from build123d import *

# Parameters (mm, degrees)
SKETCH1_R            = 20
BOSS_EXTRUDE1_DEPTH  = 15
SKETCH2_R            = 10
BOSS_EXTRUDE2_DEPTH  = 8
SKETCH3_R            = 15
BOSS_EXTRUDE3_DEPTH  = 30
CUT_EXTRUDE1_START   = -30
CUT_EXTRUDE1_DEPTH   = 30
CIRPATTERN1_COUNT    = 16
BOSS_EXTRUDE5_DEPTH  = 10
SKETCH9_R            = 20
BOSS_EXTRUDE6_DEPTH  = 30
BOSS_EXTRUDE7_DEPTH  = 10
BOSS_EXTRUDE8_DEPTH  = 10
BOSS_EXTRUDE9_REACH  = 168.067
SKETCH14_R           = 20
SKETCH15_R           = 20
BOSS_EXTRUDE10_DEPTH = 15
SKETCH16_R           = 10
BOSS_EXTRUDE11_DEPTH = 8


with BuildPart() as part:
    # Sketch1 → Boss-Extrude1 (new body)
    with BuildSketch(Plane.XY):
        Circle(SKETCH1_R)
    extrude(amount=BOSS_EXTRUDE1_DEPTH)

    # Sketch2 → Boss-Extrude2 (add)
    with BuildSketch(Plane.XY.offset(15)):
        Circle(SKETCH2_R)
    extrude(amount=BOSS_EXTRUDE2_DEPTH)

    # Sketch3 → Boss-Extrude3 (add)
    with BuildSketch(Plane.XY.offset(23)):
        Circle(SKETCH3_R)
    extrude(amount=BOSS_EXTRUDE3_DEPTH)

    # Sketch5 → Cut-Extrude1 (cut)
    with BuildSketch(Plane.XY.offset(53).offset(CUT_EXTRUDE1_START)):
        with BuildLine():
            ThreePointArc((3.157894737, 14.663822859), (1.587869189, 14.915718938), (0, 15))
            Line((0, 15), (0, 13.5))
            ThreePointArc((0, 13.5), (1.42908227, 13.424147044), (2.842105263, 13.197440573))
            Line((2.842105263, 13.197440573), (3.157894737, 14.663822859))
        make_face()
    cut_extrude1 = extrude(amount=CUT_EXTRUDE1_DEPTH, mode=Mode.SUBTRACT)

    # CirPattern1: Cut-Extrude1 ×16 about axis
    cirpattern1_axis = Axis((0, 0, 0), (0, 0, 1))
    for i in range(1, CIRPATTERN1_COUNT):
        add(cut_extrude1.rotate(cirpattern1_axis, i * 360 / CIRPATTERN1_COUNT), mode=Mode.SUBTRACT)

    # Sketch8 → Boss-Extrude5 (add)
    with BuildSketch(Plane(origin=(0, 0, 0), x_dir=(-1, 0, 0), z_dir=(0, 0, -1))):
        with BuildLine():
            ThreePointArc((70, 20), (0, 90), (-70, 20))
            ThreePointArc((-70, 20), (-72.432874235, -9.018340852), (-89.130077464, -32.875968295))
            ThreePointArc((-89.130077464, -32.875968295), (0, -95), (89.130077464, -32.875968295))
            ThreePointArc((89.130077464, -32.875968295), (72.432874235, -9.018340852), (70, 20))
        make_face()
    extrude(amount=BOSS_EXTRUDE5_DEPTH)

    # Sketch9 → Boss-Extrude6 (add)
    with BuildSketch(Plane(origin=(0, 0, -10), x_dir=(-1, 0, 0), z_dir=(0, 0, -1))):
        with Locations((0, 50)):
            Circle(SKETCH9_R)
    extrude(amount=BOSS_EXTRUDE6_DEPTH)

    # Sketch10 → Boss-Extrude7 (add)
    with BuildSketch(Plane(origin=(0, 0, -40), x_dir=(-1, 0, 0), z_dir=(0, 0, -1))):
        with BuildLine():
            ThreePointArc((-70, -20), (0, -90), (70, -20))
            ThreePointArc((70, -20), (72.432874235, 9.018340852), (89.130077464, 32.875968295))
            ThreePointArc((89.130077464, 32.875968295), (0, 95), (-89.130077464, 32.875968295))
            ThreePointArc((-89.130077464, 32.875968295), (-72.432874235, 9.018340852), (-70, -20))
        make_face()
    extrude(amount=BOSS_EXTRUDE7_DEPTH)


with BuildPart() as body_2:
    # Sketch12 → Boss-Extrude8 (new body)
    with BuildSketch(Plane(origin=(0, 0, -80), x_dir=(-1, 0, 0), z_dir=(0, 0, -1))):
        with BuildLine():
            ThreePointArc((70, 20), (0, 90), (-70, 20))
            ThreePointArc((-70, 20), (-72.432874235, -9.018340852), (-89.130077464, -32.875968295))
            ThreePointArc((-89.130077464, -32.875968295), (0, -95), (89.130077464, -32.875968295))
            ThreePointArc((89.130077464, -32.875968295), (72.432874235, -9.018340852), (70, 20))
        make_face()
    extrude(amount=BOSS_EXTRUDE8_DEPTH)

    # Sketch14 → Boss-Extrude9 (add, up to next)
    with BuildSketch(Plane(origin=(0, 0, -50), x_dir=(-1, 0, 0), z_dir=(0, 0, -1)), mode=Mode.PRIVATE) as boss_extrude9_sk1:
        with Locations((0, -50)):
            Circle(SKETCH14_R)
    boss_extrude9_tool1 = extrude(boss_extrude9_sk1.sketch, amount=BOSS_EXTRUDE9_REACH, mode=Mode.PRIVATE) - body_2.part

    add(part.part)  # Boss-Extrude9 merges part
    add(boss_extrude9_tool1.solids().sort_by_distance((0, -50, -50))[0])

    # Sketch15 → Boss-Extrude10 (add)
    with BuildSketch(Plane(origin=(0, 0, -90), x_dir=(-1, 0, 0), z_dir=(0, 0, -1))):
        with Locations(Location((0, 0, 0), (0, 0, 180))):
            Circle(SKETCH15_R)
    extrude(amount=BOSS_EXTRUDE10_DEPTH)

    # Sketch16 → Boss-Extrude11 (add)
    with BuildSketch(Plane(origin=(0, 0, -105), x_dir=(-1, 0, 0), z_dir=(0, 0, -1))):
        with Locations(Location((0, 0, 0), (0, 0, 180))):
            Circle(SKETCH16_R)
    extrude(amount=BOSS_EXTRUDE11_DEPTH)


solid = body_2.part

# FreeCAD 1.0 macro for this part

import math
import FreeCAD as App
import Part
import Sketcher
from FreeCAD import Vector
Q = App.Units.Quantity

doc = App.newDocument("Part")
body = doc.addObject("PartDesign::Body", "Body")

# Sketch on XY plane
sketch1 = body.newObject("Sketcher::SketchObject", "Sketch")
sketch1.AttachmentSupport = (doc.getObject("XY_Plane"), [""])
sketch1.MapMode = "FlatFace"
sketch1.addGeometry(Part.Circle(Vector(0, 0, 0), Vector(0, 0, 1), 20), False)
sketch1.addConstraint([
    Sketcher.Constraint("Coincident", 0, 3, -1, 1),
    Sketcher.Constraint("Diameter", 0, Q("40 mm")),
])
pad1 = body.newObject("PartDesign::Pad", "Pad")
pad1.Profile = sketch1
pad1.Length = 15

# Sketch on XY plane
sketch2 = body.newObject("Sketcher::SketchObject", "Sketch001")
sketch2.AttachmentSupport = (doc.getObject("XY_Plane"), [""])
sketch2.MapMode = "FlatFace"
sketch2.AttachmentOffset = App.Placement(Vector(0, 0, 15), App.Rotation())
sketch2.addGeometry(Part.Circle(Vector(0, 0, 0), Vector(0, 0, 1), 10), False)
sketch2.addConstraint([
    Sketcher.Constraint("Coincident", 0, 3, -1, 1),
    Sketcher.Constraint("Diameter", 0, Q("20 mm")),
])
pad2 = body.newObject("PartDesign::Pad", "Pad001")
pad2.Profile = sketch2
pad2.Length = 8

# Sketch on XY plane
sketch3 = body.newObject("Sketcher::SketchObject", "Sketch002")
sketch3.AttachmentSupport = (doc.getObject("XY_Plane"), [""])
sketch3.MapMode = "FlatFace"
sketch3.AttachmentOffset = App.Placement(Vector(0, 0, 23), App.Rotation())
sketch3.addGeometry(Part.Circle(Vector(0, 0, 0), Vector(0, 0, 1), 15), False)
sketch3.addConstraint([
    Sketcher.Constraint("Coincident", 0, 3, -1, 1),
    Sketcher.Constraint("Diameter", 0, Q("30 mm")),
])
pad3 = body.newObject("PartDesign::Pad", "Pad002")
pad3.Profile = sketch3
pad3.Length = 30

# Sketch on XY plane
sketch4 = body.newObject("Sketcher::SketchObject", "Sketch003")
sketch4.AttachmentSupport = (doc.getObject("XY_Plane"), [""])
sketch4.MapMode = "FlatFace"
sketch4.AttachmentOffset = App.Placement(Vector(0, 0, 23), App.Rotation())
sketch4.addGeometry([
    Part.ArcOfCircle(Part.Circle(Vector(0, 0, 0), Vector(0, 0, 1), 15), math.radians(77.846803), math.radians(90)),
    Part.LineSegment(Vector(0, 15, 0), Vector(0, 13.5, 0)),
    Part.ArcOfCircle(Part.Circle(Vector(0, 0, 0), Vector(0, 0, 1), 13.5), math.radians(77.846803), math.radians(90)),
    Part.LineSegment(Vector(2.842105, 13.197441, 0), Vector(3.157895, 14.663823, 0)),
], False)
sketch4.addConstraint([
    Sketcher.Constraint("Coincident", 0, 2, 1, 1),
    Sketcher.Constraint("Coincident", 1, 2, 2, 2),
    Sketcher.Constraint("Coincident", 2, 1, 3, 1),
    Sketcher.Constraint("Coincident", 3, 2, 0, 1),
    Sketcher.Constraint("Vertical", 1),
    Sketcher.Constraint("Coincident", 0, 3, -1, 1),
    Sketcher.Constraint("Coincident", 2, 3, -1, 1),
    Sketcher.Constraint("PointOnObject", 0, 2, -2),
    Sketcher.Constraint("Radius", 0, Q("15 mm")),
    Sketcher.Constraint("Radius", 2, Q("13.5 mm")),
    Sketcher.Constraint("DistanceY", -1, 1, 2, 1, Q("13.197441 mm")),
    Sketcher.Constraint("DistanceX", 2, 1, 3, 2, Q("0.315789 mm")),
])
pocket1 = body.newObject("PartDesign::Pocket", "Pocket")
pocket1.Profile = sketch4
pocket1.Length = 30
pocket1.Reversed = True
doc.recompute()

polarpattern = body.newObject("PartDesign::PolarPattern", "PolarPattern")
polarpattern.Originals = [pocket1]
polarpattern.Axis = (doc.getObject("Z_Axis"), [""])
polarpattern.Angle = 360
polarpattern.Occurrences = 16
body.Tip = polarpattern

# Sketch on XY plane
sketch5 = body.newObject("Sketcher::SketchObject", "Sketch004")
sketch5.AttachmentSupport = (doc.getObject("XY_Plane"), [""])
sketch5.MapMode = "FlatFace"
sketch5.addGeometry([
    Part.ArcOfCircle(Part.Circle(Vector(0, 20, 0), Vector(0, 0, 1), 70), math.radians(0), math.radians(180)),
    Part.ArcOfCircle(Part.Circle(Vector(125, 10, 0), Vector(0, 0, 1), 55.901699), math.radians(169.695154), math.radians(230.084236)),
    Part.ArcOfCircle(Part.Circle(Vector(0, 0, 0), Vector(0, 0, 1), 95), math.radians(-159.753312), math.radians(-20.246688)),
    Part.ArcOfCircle(Part.Circle(Vector(-125, 10, 0), Vector(0, 0, 1), 55.901699), math.radians(-50.084236), math.radians(10.304846)),
], False)
sketch5.addConstraint([
    Sketcher.Constraint("Coincident", 0, 1, 1, 1),
    Sketcher.Constraint("Coincident", 1, 2, 2, 2),
    Sketcher.Constraint("Coincident", 2, 1, 3, 1),
    Sketcher.Constraint("Coincident", 3, 2, 0, 2),
    Sketcher.Constraint("Coincident", 2, 3, -1, 1),
    Sketcher.Constraint("Equal", 1, 3),
    Sketcher.Constraint("Symmetric", 1, 3, 3, 3, -2),
    Sketcher.Constraint("PointOnObject", 0, 3, -2),
    Sketcher.Constraint("Radius", 0, Q("70 mm")),
    Sketcher.Constraint("Radius", 2, Q("95 mm")),
    Sketcher.Constraint("DistanceY", -1, 1, 0, 3, Q("20 mm")),
    Sketcher.Constraint("DistanceX", -1, 1, 1, 3, Q("125 mm")),
    Sketcher.Constraint("DistanceY", -1, 1, 1, 3, Q("10 mm")),
    Sketcher.Constraint("DistanceY", -1, 1, 0, 1, Q("20 mm")),
])
pad4 = body.newObject("PartDesign::Pad", "Pad003")
pad4.Profile = sketch5
pad4.Length = 10
pad4.Reversed = True

# Sketch on XY plane
sketch6 = body.newObject("Sketcher::SketchObject", "Sketch005")
sketch6.AttachmentSupport = (doc.getObject("XY_Plane"), [""])
sketch6.MapMode = "FlatFace"
sketch6.AttachmentOffset = App.Placement(Vector(0, 0, -10), App.Rotation())
sketch6.addGeometry(Part.Circle(Vector(0, 50, 0), Vector(0, 0, 1), 20), False)
sketch6.addConstraint([
    Sketcher.Constraint("PointOnObject", 0, 3, -2),
    Sketcher.Constraint("Diameter", 0, Q("40 mm")),
    Sketcher.Constraint("DistanceY", -1, 1, 0, 3, Q("50 mm")),
])
pad5 = body.newObject("PartDesign::Pad", "Pad004")
pad5.Profile = sketch6
pad5.Length = 30
pad5.Reversed = True

# Sketch on XY plane
sketch7 = body.newObject("Sketcher::SketchObject", "Sketch006")
sketch7.AttachmentSupport = (doc.getObject("XY_Plane"), [""])
sketch7.MapMode = "FlatFace"
sketch7.AttachmentOffset = App.Placement(Vector(0, 0, -40), App.Rotation())
sketch7.addGeometry([
    Part.ArcOfCircle(Part.Circle(Vector(0, -20, 0), Vector(0, 0, 1), 70), math.radians(180), math.radians(360)),
    Part.ArcOfCircle(Part.Circle(Vector(-125, -10, 0), Vector(0, 0, 1), 55.901699), math.radians(-10.304846), math.radians(50.084236)),
    Part.ArcOfCircle(Part.Circle(Vector(0, 0, 0), Vector(0, 0, 1), 95), math.radians(20.246688), math.radians(159.753312)),
    Part.ArcOfCircle(Part.Circle(Vector(125, -10, 0), Vector(0, 0, 1), 55.901699), math.radians(129.915764), math.radians(190.304846)),
], False)
sketch7.addConstraint([
    Sketcher.Constraint("Coincident", 0, 1, 1, 1),
    Sketcher.Constraint("Coincident", 1, 2, 2, 2),
    Sketcher.Constraint("Coincident", 2, 1, 3, 1),
    Sketcher.Constraint("Coincident", 3, 2, 0, 2),
    Sketcher.Constraint("Coincident", 2, 3, -1, 1),
    Sketcher.Constraint("Equal", 1, 3),
    Sketcher.Constraint("Symmetric", 1, 3, 3, 3, -2),
    Sketcher.Constraint("PointOnObject", 0, 3, -2),
    Sketcher.Constraint("Radius", 0, Q("70 mm")),
    Sketcher.Constraint("Radius", 2, Q("95 mm")),
    Sketcher.Constraint("DistanceY", 0, 3, -1, 1, Q("20 mm")),
    Sketcher.Constraint("DistanceX", 1, 3, -1, 1, Q("125 mm")),
    Sketcher.Constraint("DistanceY", 1, 3, -1, 1, Q("10 mm")),
    Sketcher.Constraint("DistanceY", 0, 1, -1, 1, Q("20 mm")),
])
pad6 = body.newObject("PartDesign::Pad", "Pad005")
pad6.Profile = sketch7
pad6.Length = 10
pad6.Reversed = True
body2 = doc.addObject("PartDesign::Body", "Body001")
body2.AllowCompound = True

# Sketch on XY plane
sketch8 = body2.newObject("Sketcher::SketchObject", "Sketch007")
sketch8.AttachmentSupport = (doc.getObject("XY_Plane001"), [""])
sketch8.MapMode = "FlatFace"
sketch8.AttachmentOffset = App.Placement(Vector(0, 0, -80), App.Rotation())
sketch8.addGeometry([
    Part.ArcOfCircle(Part.Circle(Vector(0, 20, 0), Vector(0, 0, 1), 70), math.radians(0), math.radians(180)),
    Part.ArcOfCircle(Part.Circle(Vector(125, 10, 0), Vector(0, 0, 1), 55.901699), math.radians(169.695154), math.radians(230.084236)),
    Part.ArcOfCircle(Part.Circle(Vector(0, 0, 0), Vector(0, 0, 1), 95), math.radians(-159.753312), math.radians(-20.246688)),
    Part.ArcOfCircle(Part.Circle(Vector(-125, 10, 0), Vector(0, 0, 1), 55.901699), math.radians(-50.084236), math.radians(10.304846)),
], False)
sketch8.addConstraint([
    Sketcher.Constraint("Coincident", 0, 1, 1, 1),
    Sketcher.Constraint("Coincident", 1, 2, 2, 2),
    Sketcher.Constraint("Coincident", 2, 1, 3, 1),
    Sketcher.Constraint("Coincident", 3, 2, 0, 2),
    Sketcher.Constraint("Coincident", 2, 3, -1, 1),
    Sketcher.Constraint("Equal", 1, 3),
    Sketcher.Constraint("Symmetric", 1, 3, 3, 3, -2),
    Sketcher.Constraint("PointOnObject", 0, 3, -2),
    Sketcher.Constraint("Radius", 0, Q("70 mm")),
    Sketcher.Constraint("Radius", 2, Q("95 mm")),
    Sketcher.Constraint("DistanceY", -1, 1, 0, 3, Q("20 mm")),
    Sketcher.Constraint("DistanceX", -1, 1, 1, 3, Q("125 mm")),
    Sketcher.Constraint("DistanceY", -1, 1, 1, 3, Q("10 mm")),
    Sketcher.Constraint("DistanceY", -1, 1, 0, 1, Q("20 mm")),
])
pad7 = body2.newObject("PartDesign::Pad", "Pad006")
pad7.Profile = sketch8
pad7.Length = 10
pad7.Reversed = True
doc.recompute()

boolean = body2.newObject("PartDesign::Boolean", "Boolean")
boolean.Type = "Fuse"
boolean.addObjects([body])

# Sketch on XY plane
sketch9 = body2.newObject("Sketcher::SketchObject", "Sketch008")
sketch9.AttachmentSupport = (doc.getObject("XY_Plane001"), [""])
sketch9.MapMode = "FlatFace"
sketch9.AttachmentOffset = App.Placement(Vector(0, 0, -50), App.Rotation())
sketch9.addGeometry(Part.Circle(Vector(0, -50, 0), Vector(0, 0, 1), 20), False)
sketch9.addConstraint([
    Sketcher.Constraint("PointOnObject", 0, 3, -2),
    Sketcher.Constraint("Diameter", 0, Q("40 mm")),
    Sketcher.Constraint("DistanceY", 0, 3, -1, 1, Q("50 mm")),
])
pad8 = body2.newObject("PartDesign::Pad", "Pad007")
pad8.Profile = sketch9
pad8.Type = "UpToFirst"
pad8.Reversed = True

# Sketch on XY plane
sketch10 = body2.newObject("Sketcher::SketchObject", "Sketch009")
sketch10.AttachmentSupport = (doc.getObject("XY_Plane001"), [""])
sketch10.MapMode = "FlatFace"
sketch10.AttachmentOffset = App.Placement(Vector(0, 0, -90), App.Rotation())
sketch10.addGeometry(Part.Circle(Vector(0, 0, 0), Vector(0, 0, 1), 20), False)
sketch10.addConstraint([
    Sketcher.Constraint("Coincident", 0, 3, -1, 1),
    Sketcher.Constraint("Diameter", 0, Q("40 mm")),
])
pad9 = body2.newObject("PartDesign::Pad", "Pad008")
pad9.Profile = sketch10
pad9.Length = 15
pad9.Reversed = True

# Sketch on XY plane
sketch11 = body2.newObject("Sketcher::SketchObject", "Sketch010")
sketch11.AttachmentSupport = (doc.getObject("XY_Plane001"), [""])
sketch11.MapMode = "FlatFace"
sketch11.AttachmentOffset = App.Placement(Vector(0, 0, -105), App.Rotation())
sketch11.addGeometry(Part.Circle(Vector(0, 0, 0), Vector(0, 0, 1), 10), False)
sketch11.addConstraint([
    Sketcher.Constraint("Coincident", 0, 3, -1, 1),
    Sketcher.Constraint("Diameter", 0, Q("20 mm")),
])
pad10 = body2.newObject("PartDesign::Pad", "Pad009")
pad10.Profile = sketch11
pad10.Length = 8
pad10.Reversed = True

doc.recompute()
